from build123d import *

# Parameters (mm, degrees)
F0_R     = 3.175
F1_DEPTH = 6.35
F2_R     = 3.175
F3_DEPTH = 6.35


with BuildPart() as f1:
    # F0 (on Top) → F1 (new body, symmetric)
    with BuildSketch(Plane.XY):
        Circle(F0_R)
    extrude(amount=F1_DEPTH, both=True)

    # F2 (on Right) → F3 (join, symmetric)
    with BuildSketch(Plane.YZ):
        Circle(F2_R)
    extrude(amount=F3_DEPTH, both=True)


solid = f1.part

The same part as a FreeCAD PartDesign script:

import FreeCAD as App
import Part
import Sketcher
from FreeCAD import Vector
Q = App.Units.Quantity

doc = App.newDocument("Part")
body = doc.addObject("PartDesign::Body", "Body")

# Sketch on XY plane
sketch1 = doc.addObject("Sketcher::SketchObject", "Sketch")
body.addObject(sketch1)
sketch1.AttachmentSupport = (doc.XY_Plane, [""])
sketch1.MapMode = "FlatFace"
sketch1.addGeometry(Part.Circle(Vector(0, 0, 0), Vector(0, 0, 1), 3.175), False)
sketch1.addConstraint(Sketcher.Constraint("Coincident", 0, 3, -1, 1))
sketch1.addConstraint(Sketcher.Constraint("Diameter", 0, Q("0.25 in")))
pad1 = doc.addObject("PartDesign::Pad", "Pad")
body.addObject(pad1)
pad1.Profile = sketch1
pad1.Length = Q("0.5 in")
pad1.Midplane = True

# Sketch on YZ plane
sketch2 = doc.addObject("Sketcher::SketchObject", "Sketch001")
body.addObject(sketch2)
sketch2.AttachmentSupport = (doc.YZ_Plane, [""])
sketch2.MapMode = "FlatFace"
sketch2.addGeometry(Part.Circle(Vector(0, 0, 0), Vector(0, 0, 1), 3.175), False)
sketch2.addConstraint(Sketcher.Constraint("Coincident", 0, 3, -1, 1))
sketch2.addConstraint(Sketcher.Constraint("Diameter", 0, Q("0.25 in")))
pad2 = doc.addObject("PartDesign::Pad", "Pad001")
body.addObject(pad2)
pad2.Profile = sketch2
pad2.Length = Q("0.5 in")
pad2.Midplane = True

doc.recompute()
